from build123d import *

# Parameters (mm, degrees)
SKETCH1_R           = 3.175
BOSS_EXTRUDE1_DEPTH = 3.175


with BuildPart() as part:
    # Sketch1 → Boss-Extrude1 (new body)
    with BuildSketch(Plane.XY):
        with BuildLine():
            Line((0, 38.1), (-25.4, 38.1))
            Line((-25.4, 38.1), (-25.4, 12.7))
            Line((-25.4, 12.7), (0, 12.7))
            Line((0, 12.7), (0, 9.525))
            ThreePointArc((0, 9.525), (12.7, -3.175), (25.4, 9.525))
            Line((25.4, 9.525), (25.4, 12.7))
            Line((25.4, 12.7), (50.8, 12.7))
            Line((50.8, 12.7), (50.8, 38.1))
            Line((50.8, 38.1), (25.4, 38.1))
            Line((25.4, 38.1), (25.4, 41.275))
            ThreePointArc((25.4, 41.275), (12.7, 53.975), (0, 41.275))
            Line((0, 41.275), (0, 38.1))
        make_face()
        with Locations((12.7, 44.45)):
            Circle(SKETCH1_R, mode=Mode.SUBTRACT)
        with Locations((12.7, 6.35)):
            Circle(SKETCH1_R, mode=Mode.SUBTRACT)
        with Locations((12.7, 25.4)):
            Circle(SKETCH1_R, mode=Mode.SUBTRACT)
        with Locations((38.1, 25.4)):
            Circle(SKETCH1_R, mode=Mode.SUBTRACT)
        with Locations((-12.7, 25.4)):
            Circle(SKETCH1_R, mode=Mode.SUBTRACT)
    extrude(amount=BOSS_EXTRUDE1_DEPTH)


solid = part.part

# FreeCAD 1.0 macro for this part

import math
import FreeCAD as App
import Part
import Sketcher

V = App.Vector
Q = App.Units.Quantity

doc = App.newDocument("Part")
body = doc.addObject("PartDesign::Body", "Body")

# Sketch on XY plane
sketch1 = body.newObject("Sketcher::SketchObject", "Sketch")
sketch1.AttachmentSupport = (doc.getObject("XY_Plane"), [""])
sketch1.MapMode = "FlatFace"
sketch1.addGeometry([
    Part.LineSegment(V(0, 38.1, 0), V(-25.4, 38.1, 0)),  # 0
    Part.LineSegment(V(-25.4, 38.1, 0), V(-25.4, 12.7, 0)),  # 1
    Part.LineSegment(V(-25.4, 12.7, 0), V(0, 12.7, 0)),  # 2
    Part.LineSegment(V(0, 12.7, 0), V(0, 9.525, 0)),  # 3
    Part.ArcOfCircle(Part.Circle(V(12.7, 9.525, 0), V(0, 0, 1), 12.7), math.radians(180), math.radians(360)),  # 4
    Part.LineSegment(V(25.4, 9.525, 0), V(25.4, 12.7, 0)),  # 5
    Part.LineSegment(V(25.4, 12.7, 0), V(50.8, 12.7, 0)),  # 6
    Part.LineSegment(V(50.8, 12.7, 0), V(50.8, 38.1, 0)),  # 7
    Part.LineSegment(V(50.8, 38.1, 0), V(25.4, 38.1, 0)),  # 8
    Part.LineSegment(V(25.4, 38.1, 0), V(25.4, 41.275, 0)),  # 9
    Part.ArcOfCircle(Part.Circle(V(12.7, 41.275, 0), V(0, 0, 1), 12.7), math.radians(0), math.radians(180)),  # 10
    Part.LineSegment(V(0, 41.275, 0), V(0, 38.1, 0)),  # 11
    Part.Circle(V(12.7, 6.35, 0), V(0, 0, 1), 3.175),  # 12
    Part.Circle(V(-12.7, 25.4, 0), V(0, 0, 1), 3.175),  # 13
    Part.Circle(V(12.7, 25.4, 0), V(0, 0, 1), 3.175),  # 14
    Part.Circle(V(38.1, 25.4, 0), V(0, 0, 1), 3.175),  # 15
    Part.Circle(V(12.7, 44.45, 0), V(0, 0, 1), 3.175),  # 16
], False)
sketch1.addConstraint([
    Sketcher.Constraint("Coincident", 0, 2, 1, 1),
    Sketcher.Constraint("Coincident", 1, 2, 2, 1),
    Sketcher.Constraint("Coincident", 2, 2, 3, 1),
    Sketcher.Constraint("Tangent", 3, 2, 4, 1),
    Sketcher.Constraint("Tangent", 4, 2, 5, 1),
    Sketcher.Constraint("Coincident", 5, 2, 6, 1),
    Sketcher.Constraint("Coincident", 6, 2, 7, 1),
    Sketcher.Constraint("Coincident", 7, 2, 8, 1),
    Sketcher.Constraint("Coincident", 8, 2, 9, 1),
    Sketcher.Constraint("Tangent", 9, 2, 10, 1),
    Sketcher.Constraint("Tangent", 10, 2, 11, 1),
    Sketcher.Constraint("Coincident", 11, 2, 0, 1),
    Sketcher.Constraint("Horizontal", 0),
    Sketcher.Constraint("Vertical", 1),
    Sketcher.Constraint("Horizontal", 2),
    Sketcher.Constraint("Vertical", 3),
    Sketcher.Constraint("Vertical", 5),
    Sketcher.Constraint("Horizontal", 6),
    Sketcher.Constraint("Vertical", 7),
    Sketcher.Constraint("Horizontal", 8),
    Sketcher.Constraint("Vertical", 9),
    Sketcher.Constraint("Vertical", 11),
    Sketcher.Constraint("Equal", 4, 10),
    Sketcher.Constraint("Equal", 12, 13),
    Sketcher.Constraint("Equal", 13, 14),
    Sketcher.Constraint("Equal", 14, 15),
    Sketcher.Constraint("Equal", 15, 16),
    Sketcher.Constraint("Symmetric", 13, 3, 14, 3, -2),
    Sketcher.Constraint("Symmetric", 1, 2, 5, 2, -2),
    Sketcher.Constraint("Symmetric", 0, 2, 8, 2, -2),
    Sketcher.Constraint("PointOnObject", 2, 2, -2),
    Sketcher.Constraint("Horizontal", 14, 3, 15, 3),
    Sketcher.Constraint("Vertical", 10, 3, 12, 3),
    Sketcher.Constraint("Vertical", 12, 3, 14, 3),
    Sketcher.Constraint("Vertical", 14, 3, 16, 3),
    Sketcher.Constraint("Equal", 2, 6),
    Sketcher.Constraint("Equal", 8, 1),
    Sketcher.Constraint("Equal", 5, 9),
    Sketcher.Constraint("Radius", 4, Q("0.5 in")),
    Sketcher.Constraint("Diameter", 12, Q("0.25 in")),
    Sketcher.Constraint("DistanceY", -1, 1, 13, 3, Q("1 in")),
    Sketcher.Constraint("DistanceX", 14, 3, 15, 3, Q("1 in")),
    Sketcher.Constraint("DistanceY", -1, 1, 0, 2, Q("1.5 in")),
    Sketcher.Constraint("DistanceY", 3, 2, 3, 1, Q("0.125 in")),
    Sketcher.Constraint("DistanceY", -1, 1, 12, 3, Q("0.25 in")),
    Sketcher.Constraint("DistanceY", -1, 1, 16, 3, Q("1.75 in")),
])
pad1 = body.newObject("PartDesign::Pad", "Pad")
pad1.Profile = sketch1
pad1.Length = Q("0.125 in")

doc.recompute()
